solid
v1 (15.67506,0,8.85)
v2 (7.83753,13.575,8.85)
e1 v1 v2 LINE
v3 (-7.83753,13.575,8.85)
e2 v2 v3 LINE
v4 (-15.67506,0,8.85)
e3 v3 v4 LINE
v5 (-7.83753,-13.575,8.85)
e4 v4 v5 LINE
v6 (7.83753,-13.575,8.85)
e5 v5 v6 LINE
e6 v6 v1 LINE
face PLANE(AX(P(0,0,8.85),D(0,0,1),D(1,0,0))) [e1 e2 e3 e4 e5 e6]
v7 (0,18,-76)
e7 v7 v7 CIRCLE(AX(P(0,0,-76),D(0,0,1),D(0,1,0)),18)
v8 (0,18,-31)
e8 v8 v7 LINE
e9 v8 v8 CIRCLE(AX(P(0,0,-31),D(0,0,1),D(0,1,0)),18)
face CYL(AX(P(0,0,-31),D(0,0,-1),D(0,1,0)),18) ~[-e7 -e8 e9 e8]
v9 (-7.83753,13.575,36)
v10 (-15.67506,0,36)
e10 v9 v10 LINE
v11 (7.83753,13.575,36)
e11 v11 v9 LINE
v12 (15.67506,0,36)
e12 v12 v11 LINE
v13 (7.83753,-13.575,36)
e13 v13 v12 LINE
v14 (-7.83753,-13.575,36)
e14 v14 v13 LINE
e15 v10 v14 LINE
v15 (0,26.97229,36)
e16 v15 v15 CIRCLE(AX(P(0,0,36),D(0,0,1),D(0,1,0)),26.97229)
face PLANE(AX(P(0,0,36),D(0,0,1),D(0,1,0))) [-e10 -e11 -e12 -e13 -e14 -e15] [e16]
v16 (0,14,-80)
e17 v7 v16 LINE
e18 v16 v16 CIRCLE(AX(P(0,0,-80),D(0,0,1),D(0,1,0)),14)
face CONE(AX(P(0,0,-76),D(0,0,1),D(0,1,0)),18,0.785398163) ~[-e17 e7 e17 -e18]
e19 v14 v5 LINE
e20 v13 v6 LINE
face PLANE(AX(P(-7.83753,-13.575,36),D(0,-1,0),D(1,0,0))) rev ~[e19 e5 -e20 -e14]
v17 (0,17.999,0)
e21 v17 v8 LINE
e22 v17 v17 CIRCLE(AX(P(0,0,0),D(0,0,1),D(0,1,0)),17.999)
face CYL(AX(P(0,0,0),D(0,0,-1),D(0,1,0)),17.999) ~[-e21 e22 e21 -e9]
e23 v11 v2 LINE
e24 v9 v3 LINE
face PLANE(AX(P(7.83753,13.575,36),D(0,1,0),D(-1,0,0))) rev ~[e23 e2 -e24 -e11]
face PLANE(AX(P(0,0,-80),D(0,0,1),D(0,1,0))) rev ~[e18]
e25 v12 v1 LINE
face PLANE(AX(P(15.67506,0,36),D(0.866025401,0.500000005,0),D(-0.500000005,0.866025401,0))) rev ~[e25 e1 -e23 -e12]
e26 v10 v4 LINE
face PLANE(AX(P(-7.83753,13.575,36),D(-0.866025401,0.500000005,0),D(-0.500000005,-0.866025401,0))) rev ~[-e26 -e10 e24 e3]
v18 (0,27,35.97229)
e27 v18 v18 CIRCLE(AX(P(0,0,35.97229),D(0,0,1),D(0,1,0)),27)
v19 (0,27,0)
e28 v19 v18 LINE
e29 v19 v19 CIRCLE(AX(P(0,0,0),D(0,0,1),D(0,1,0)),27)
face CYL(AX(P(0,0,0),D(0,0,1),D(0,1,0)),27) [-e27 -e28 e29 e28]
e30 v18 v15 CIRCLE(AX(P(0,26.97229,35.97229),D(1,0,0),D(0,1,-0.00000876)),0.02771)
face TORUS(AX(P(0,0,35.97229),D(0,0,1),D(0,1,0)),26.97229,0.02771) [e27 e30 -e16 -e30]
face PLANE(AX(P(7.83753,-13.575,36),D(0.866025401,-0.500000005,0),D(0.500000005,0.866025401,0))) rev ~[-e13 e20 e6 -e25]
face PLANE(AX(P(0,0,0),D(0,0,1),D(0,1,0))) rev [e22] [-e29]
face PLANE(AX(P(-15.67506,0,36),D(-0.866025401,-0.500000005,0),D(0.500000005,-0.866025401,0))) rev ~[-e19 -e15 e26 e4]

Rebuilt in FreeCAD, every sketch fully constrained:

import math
import FreeCAD as App
import Part
import Sketcher

V = App.Vector
Q = App.Units.Quantity

doc = App.newDocument("Part")
params = doc.addObject("Spreadsheet::Sheet", "Params")
for row, (alias, value) in enumerate([
    ("sketch1_width", "14 mm"),
    ("sketch1_height", "116 mm"),
    ("sketch1_height2", "45 mm"),
    ("sketch1_length", "31 mm"),
    ("revolution_angle", "360 deg"),
    ("pocket1_length", "27.15 mm"),
], start=1):
    params.set(f"A{row}", alias)
    params.set(f"B{row}", "=" + value)
    params.setAlias(f"B{row}", alias)

body = doc.addObject("PartDesign::Body", "Body")

sketch1 = body.newObject("Sketcher::SketchObject", "Sketch")
sketch1.AttachmentSupport = (doc.getObject("YZ_Plane"), [""])
sketch1.MapMode = "FlatFace"
sketch1.addGeometry([
    Part.LineSegment(V(17.999, 0, 0), V(27, 0, 0)),
    Part.LineSegment(V(27, 0, 0), V(27, 35.972, 0)),
    Part.ArcOfCircle(Part.Circle(V(26.972, 35.972, 0), V(0, 0, 1), 0.028), math.radians(0), math.radians(90)),
    Part.LineSegment(V(26.972, 36, 0), V(0, 36, 0)),
    Part.LineSegment(V(0, 36, 0), V(0, -80, 0)),
    Part.LineSegment(V(0, -80, 0), V(14, -80, 0)),
    Part.LineSegment(V(14, -80, 0), V(18, -76, 0)),
    Part.LineSegment(V(18, -76, 0), V(18, -31, 0)),
    Part.LineSegment(V(18, -31, 0), V(17.999, 0, 0)),
], False)
sketch1.addConstraint([
    Sketcher.Constraint("Coincident", 0, 2, 1, 1),
    Sketcher.Constraint("Coincident", 1, 2, 2, 1),
    Sketcher.Constraint("Coincident", 2, 2, 3, 1),
    Sketcher.Constraint("Coincident", 3, 2, 4, 1),
    Sketcher.Constraint("Coincident", 4, 2, 5, 1),
    Sketcher.Constraint("Coincident", 5, 2, 6, 1),
    Sketcher.Constraint("Coincident", 6, 2, 7, 1),
    Sketcher.Constraint("Coincident", 7, 2, 8, 1),
    Sketcher.Constraint("Coincident", 8, 2, 0, 1),
    Sketcher.Constraint("Horizontal", 0),
    Sketcher.Constraint("Vertical", 1),
    Sketcher.Constraint("Horizontal", 3),
    Sketcher.Constraint("Vertical", 4),
    Sketcher.Constraint("Horizontal", 5),
    Sketcher.Constraint("Vertical", 7),
    Sketcher.Constraint("PointOnObject", 0, 2, -1),
    Sketcher.Constraint("PointOnObject", 3, 2, -2),
    Sketcher.Constraint("Horizontal", 2, 3, 1, 2),
    Sketcher.Constraint("DistanceX", 5, 1, 5, 2, 14.0),
    Sketcher.Constraint("DistanceY", 4, 2, 4, 1, 116.0),
    Sketcher.Constraint("DistanceY", 7, 1, 7, 2, 45.0),
    Sketcher.Constraint("Angle", 6, Q("45 deg")),
    Sketcher.Constraint("Distance", 8, 31.0),
    Sketcher.Constraint("DistanceX", -1, 1, 0, 2, 27.0),
    Sketcher.Constraint("DistanceY", -1, 1, 2, 2, 36.0),
    Sketcher.Constraint("DistanceX", 0, 1, 0, 2, 9.001),
    Sketcher.Constraint("Radius", 2, 0.02771),
    Sketcher.Constraint("DistanceX", 3, 2, 3, 1, 26.97229),
])
sketch1.setExpression("Constraints[18]", "Params.sketch1_width")
sketch1.setExpression("Constraints[19]", "Params.sketch1_height")
sketch1.setExpression("Constraints[20]", "Params.sketch1_height2")
sketch1.setExpression("Constraints[22]", "Params.sketch1_length")
revolution = body.newObject("PartDesign::Revolution", "Revolution")
revolution.Profile = sketch1
revolution.ReferenceAxis = (sketch1, ["V_Axis"])
revolution.setExpression("Angle", "Params.revolution_angle")

sketch2 = body.newObject("Sketcher::SketchObject", "Sketch001")
sketch2.AttachmentSupport = (doc.getObject("XY_Plane"), [""])
sketch2.MapMode = "FlatFace"
sketch2.AttachmentOffset = App.Placement(V(0, 0, 36), App.Rotation())
sketch2.addGeometry([
    Part.LineSegment(V(16, 0, 0), V(8, 14, 0)),
    Part.LineSegment(V(8, 14, 0), V(-8, 14, 0)),
    Part.LineSegment(V(-8, 14, 0), V(-16, 0, 0)),
    Part.LineSegment(V(-16, 0, 0), V(-8, -14, 0)),
    Part.LineSegment(V(-8, -14, 0), V(8, -14, 0)),
    Part.LineSegment(V(8, -14, 0), V(16, 0, 0)),
], False)
sketch2.addConstraint([
    Sketcher.Constraint("Coincident", 0, 2, 1, 1),
    Sketcher.Constraint("Coincident", 1, 2, 2, 1),
    Sketcher.Constraint("Coincident", 2, 2, 3, 1),
    Sketcher.Constraint("Coincident", 3, 2, 4, 1),
    Sketcher.Constraint("Coincident", 4, 2, 5, 1),
    Sketcher.Constraint("Coincident", 5, 2, 0, 1),
    Sketcher.Constraint("Horizontal", 1),
    Sketcher.Constraint("Horizontal", 4),
    Sketcher.Constraint("Symmetric", 0, 2, 3, 2, -1, 1),
    Sketcher.Constraint("Symmetric", 2, 2, 5, 2, -1, 1),
    Sketcher.Constraint("PointOnObject", 2, 2, -1),
    Sketcher.Constraint("Parallel", 2, 5),
    Sketcher.Constraint("Vertical", 1, 2, 3, 2),
    Sketcher.Constraint("Angle", 0, Q("120 deg")),
    Sketcher.Constraint("DistanceY", 3, 2, 1, 2, 27.15),
    Sketcher.Constraint("DistanceX", 1, 2, 1, 1, 15.67506),
])
pocket1 = body.newObject("PartDesign::Pocket", "Pocket")
pocket1.Profile = sketch2
pocket1.setExpression("Length", "Params.pocket1_length")

doc.recompute()
